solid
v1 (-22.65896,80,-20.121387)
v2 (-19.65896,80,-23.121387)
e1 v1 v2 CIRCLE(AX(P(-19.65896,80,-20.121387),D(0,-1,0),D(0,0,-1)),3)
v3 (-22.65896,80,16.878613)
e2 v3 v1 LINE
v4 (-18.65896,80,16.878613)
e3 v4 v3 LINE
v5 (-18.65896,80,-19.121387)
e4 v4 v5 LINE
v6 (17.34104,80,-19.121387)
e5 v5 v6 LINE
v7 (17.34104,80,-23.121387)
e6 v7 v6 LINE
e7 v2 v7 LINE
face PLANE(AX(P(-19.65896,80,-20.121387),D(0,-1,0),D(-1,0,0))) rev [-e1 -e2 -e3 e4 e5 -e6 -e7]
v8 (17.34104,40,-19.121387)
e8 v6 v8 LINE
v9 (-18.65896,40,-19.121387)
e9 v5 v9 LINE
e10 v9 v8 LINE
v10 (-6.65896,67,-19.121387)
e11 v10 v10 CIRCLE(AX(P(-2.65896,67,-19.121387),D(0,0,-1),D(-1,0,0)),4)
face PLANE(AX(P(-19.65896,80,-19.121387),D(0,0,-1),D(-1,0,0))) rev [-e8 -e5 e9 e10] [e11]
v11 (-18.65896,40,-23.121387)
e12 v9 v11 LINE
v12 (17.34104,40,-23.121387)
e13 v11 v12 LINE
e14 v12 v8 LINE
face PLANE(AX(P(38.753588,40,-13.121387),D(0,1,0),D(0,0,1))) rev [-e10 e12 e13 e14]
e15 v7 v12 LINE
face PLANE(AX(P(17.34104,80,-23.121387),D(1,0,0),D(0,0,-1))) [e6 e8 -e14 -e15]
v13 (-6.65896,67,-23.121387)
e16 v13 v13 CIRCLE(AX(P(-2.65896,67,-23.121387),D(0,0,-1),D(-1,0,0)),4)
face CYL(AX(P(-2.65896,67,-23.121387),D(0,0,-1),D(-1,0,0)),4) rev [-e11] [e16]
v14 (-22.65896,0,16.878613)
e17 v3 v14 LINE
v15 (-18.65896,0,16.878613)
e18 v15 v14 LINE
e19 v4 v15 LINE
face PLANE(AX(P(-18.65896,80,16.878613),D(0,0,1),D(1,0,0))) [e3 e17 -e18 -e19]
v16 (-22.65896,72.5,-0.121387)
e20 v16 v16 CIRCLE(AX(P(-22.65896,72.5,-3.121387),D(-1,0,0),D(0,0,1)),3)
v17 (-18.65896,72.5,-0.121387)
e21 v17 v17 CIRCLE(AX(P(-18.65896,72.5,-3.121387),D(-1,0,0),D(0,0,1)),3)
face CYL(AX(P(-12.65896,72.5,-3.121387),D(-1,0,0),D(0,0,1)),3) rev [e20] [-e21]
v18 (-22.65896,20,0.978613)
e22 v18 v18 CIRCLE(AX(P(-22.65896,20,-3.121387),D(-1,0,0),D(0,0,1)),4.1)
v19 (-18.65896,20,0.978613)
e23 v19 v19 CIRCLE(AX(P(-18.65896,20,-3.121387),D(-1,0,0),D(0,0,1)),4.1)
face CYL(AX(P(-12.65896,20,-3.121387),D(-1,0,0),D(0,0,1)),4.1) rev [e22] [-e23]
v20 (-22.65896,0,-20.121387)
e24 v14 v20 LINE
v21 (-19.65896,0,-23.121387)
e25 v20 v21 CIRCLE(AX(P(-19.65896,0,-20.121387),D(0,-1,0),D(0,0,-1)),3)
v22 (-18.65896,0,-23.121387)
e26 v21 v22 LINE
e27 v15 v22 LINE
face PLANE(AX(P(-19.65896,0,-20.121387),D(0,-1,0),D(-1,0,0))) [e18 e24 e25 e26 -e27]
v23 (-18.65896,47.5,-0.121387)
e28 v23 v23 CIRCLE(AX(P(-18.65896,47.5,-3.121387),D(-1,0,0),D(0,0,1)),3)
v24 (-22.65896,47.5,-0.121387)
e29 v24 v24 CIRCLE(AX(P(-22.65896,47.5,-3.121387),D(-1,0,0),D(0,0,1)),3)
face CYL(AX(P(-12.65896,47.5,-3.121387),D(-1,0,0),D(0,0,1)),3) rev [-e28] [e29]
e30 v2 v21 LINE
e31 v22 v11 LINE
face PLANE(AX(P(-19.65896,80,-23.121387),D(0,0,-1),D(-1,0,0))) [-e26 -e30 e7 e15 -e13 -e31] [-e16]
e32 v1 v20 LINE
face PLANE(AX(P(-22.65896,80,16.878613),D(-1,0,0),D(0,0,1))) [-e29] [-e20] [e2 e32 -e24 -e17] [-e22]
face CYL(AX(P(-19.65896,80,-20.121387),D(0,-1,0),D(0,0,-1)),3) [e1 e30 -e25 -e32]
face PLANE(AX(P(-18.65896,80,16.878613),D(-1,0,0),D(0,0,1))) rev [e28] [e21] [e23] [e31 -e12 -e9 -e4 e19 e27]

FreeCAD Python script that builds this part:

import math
import FreeCAD as App
import Part
import Sketcher


def add_polygon(sketch, points):
    """Adds a closed chain of lines whose ends are joined by coincident constraints."""
    first, n = sketch.GeometryCount, len(points)
    for a, b in zip(points, points[1:] + points[:1]):
        sketch.addGeometry(Part.LineSegment(App.Vector(*a, 0), App.Vector(*b, 0)), False)
    for i in range(n):
        sketch.addConstraint(Sketcher.Constraint("Coincident", first + i, 2, first + (i + 1) % n, 1))

doc = App.newDocument("Part")
body = doc.addObject("PartDesign::Body", "Body")

# Sketch on XZ plane
sketch1 = body.newObject("Sketcher::SketchObject", "Sketch")
sketch1.AttachmentSupport = (doc.getObject("XZ_Plane"), [""])
sketch1.MapMode = "FlatFace"
sketch1.addGeometry([
    Part.LineSegment(App.Vector(-22.7, -20.1, 0), App.Vector(-22.7, 16.9, 0)),  # 0
    Part.LineSegment(App.Vector(-22.7, 16.9, 0), App.Vector(-18.7, 16.9, 0)),  # 1
    Part.LineSegment(App.Vector(-18.7, 16.9, 0), App.Vector(-18.7, -19.1, 0)),  # 2
    Part.LineSegment(App.Vector(-18.7, -19.1, 0), App.Vector(17.3, -19.1, 0)),  # 3
    Part.LineSegment(App.Vector(17.3, -19.1, 0), App.Vector(17.3, -23.1, 0)),  # 4
    Part.LineSegment(App.Vector(17.3, -23.1, 0), App.Vector(-19.7, -23.1, 0)),  # 5
    Part.ArcOfCircle(Part.Circle(App.Vector(-19.7, -20.1, 0), App.Vector(0, 0, 1), 3), math.radians(180), math.radians(270)),  # 6
], False)
sketch1.addConstraint([
    Sketcher.Constraint("Coincident", 0, 2, 1, 1),
    Sketcher.Constraint("Coincident", 1, 2, 2, 1),
    Sketcher.Constraint("Coincident", 2, 2, 3, 1),
    Sketcher.Constraint("Coincident", 3, 2, 4, 1),
    Sketcher.Constraint("Coincident", 4, 2, 5, 1),
    Sketcher.Constraint("Tangent", 5, 2, 6, 2),
    Sketcher.Constraint("Tangent", 6, 1, 0, 1),
    Sketcher.Constraint("Vertical", 0),
    Sketcher.Constraint("Horizontal", 1),
    Sketcher.Constraint("Vertical", 2),
    Sketcher.Constraint("Horizontal", 3),
    Sketcher.Constraint("Vertical", 4),
    Sketcher.Constraint("Horizontal", 5),
    Sketcher.Constraint("Equal", 5, 0),
    Sketcher.Constraint("Equal", 3, 2),
    Sketcher.Constraint("Radius", 6, 3.0),
    Sketcher.Constraint("DistanceX", 1, 1, 1, 2, 4.0),
    Sketcher.Constraint("DistanceX", 3, 1, 3, 2, 36.0),
    Sketcher.Constraint("DistanceX", 6, 3, -1, 1, 19.65896),
    Sketcher.Constraint("DistanceY", 6, 3, -1, 1, 20.121387),
])
pad1 = body.newObject("PartDesign::Pad", "Pad")
pad1.Profile = sketch1
pad1.Length = 80
pad1.Reversed = True

# Sketch on YZ plane
sketch2 = body.newObject("Sketcher::SketchObject", "Sketch001")
sketch2.AttachmentSupport = (doc.getObject("YZ_Plane"), [""])
sketch2.MapMode = "FlatFace"
sketch2.AttachmentOffset = App.Placement(App.Vector(0, 0, -22.65896), App.Rotation())
sketch2.addGeometry([
    Part.Circle(App.Vector(20, -3.1, 0), App.Vector(0, 0, 1), 4.1),
    Part.Circle(App.Vector(47.5, -3.1, 0), App.Vector(0, 0, 1), 3),
    Part.Circle(App.Vector(72.5, -3.1, 0), App.Vector(0, 0, 1), 3),
], False)
sketch2.addConstraint([
    Sketcher.Constraint("Equal", 1, 2),
    Sketcher.Constraint("Horizontal", 0, 3, 1, 3),
    Sketcher.Constraint("Horizontal", 1, 3, 2, 3),
    Sketcher.Constraint("Diameter", 1, 6.0),
    Sketcher.Constraint("Diameter", 0, 8.2),
    Sketcher.Constraint("DistanceX", -1, 1, 0, 3, 20.0),
    Sketcher.Constraint("DistanceX", 1, 3, 2, 3, 25.0),
    Sketcher.Constraint("DistanceX", -1, 1, 1, 3, 47.5),
    Sketcher.Constraint("DistanceY", 0, 3, -1, 1, 3.121387),
])
pocket1 = body.newObject("PartDesign::Pocket", "Pocket")
pocket1.Profile = sketch2
pocket1.Length = 10
pocket1.Reversed = True

# Sketch on XY plane
sketch3 = body.newObject("Sketcher::SketchObject", "Sketch002")
sketch3.AttachmentSupport = (doc.getObject("XY_Plane"), [""])
sketch3.MapMode = "FlatFace"
sketch3.AttachmentOffset = App.Placement(App.Vector(0, 0, -23.121387), App.Rotation())
add_polygon(sketch3, [(39, 40), (39, 0), (-19, 0), (-19, 40)])  # lines 0-3
sketch3.addConstraint([
    Sketcher.Constraint("Vertical", 0),
    Sketcher.Constraint("Horizontal", 1),
    Sketcher.Constraint("Vertical", 2),
    Sketcher.Constraint("Horizontal", 3),
    Sketcher.Constraint("PointOnObject", 0, 2, -1),
    Sketcher.Constraint("DistanceY", 0, 2, 0, 1, 40.0),
    Sketcher.Constraint("DistanceX", 1, 2, 1, 1, 57.412548),
    Sketcher.Constraint("DistanceX", -1, 1, 0, 2, 38.753588),
])
pocket2 = body.newObject("PartDesign::Pocket", "Pocket001")
pocket2.Profile = sketch3
pocket2.Length = 10
pocket2.Reversed = True

# Sketch on XY plane
sketch4 = body.newObject("Sketcher::SketchObject", "Sketch003")
sketch4.AttachmentSupport = (doc.getObject("XY_Plane"), [""])
sketch4.MapMode = "FlatFace"
sketch4.AttachmentOffset = App.Placement(App.Vector(0, 0, -23.121387), App.Rotation())
sketch4.addGeometry(Part.Circle(App.Vector(-2.7, 67, 0), App.Vector(0, 0, 1), 4), False)
sketch4.addConstraint([
    Sketcher.Constraint("Diameter", 0, 8.0),
    Sketcher.Constraint("DistanceY", -1, 1, 0, 3, 67.0),
    Sketcher.Constraint("DistanceX", 0, 3, -1, 1, 2.65896),
])
doc.recompute()
hole = body.newObject("PartDesign::Hole", "Hole")
hole.Profile = sketch4
hole.ThreadType = "None"
hole.Diameter = 8
hole.DepthType = "ThroughAll"
hole.Reversed = True

doc.recompute()
